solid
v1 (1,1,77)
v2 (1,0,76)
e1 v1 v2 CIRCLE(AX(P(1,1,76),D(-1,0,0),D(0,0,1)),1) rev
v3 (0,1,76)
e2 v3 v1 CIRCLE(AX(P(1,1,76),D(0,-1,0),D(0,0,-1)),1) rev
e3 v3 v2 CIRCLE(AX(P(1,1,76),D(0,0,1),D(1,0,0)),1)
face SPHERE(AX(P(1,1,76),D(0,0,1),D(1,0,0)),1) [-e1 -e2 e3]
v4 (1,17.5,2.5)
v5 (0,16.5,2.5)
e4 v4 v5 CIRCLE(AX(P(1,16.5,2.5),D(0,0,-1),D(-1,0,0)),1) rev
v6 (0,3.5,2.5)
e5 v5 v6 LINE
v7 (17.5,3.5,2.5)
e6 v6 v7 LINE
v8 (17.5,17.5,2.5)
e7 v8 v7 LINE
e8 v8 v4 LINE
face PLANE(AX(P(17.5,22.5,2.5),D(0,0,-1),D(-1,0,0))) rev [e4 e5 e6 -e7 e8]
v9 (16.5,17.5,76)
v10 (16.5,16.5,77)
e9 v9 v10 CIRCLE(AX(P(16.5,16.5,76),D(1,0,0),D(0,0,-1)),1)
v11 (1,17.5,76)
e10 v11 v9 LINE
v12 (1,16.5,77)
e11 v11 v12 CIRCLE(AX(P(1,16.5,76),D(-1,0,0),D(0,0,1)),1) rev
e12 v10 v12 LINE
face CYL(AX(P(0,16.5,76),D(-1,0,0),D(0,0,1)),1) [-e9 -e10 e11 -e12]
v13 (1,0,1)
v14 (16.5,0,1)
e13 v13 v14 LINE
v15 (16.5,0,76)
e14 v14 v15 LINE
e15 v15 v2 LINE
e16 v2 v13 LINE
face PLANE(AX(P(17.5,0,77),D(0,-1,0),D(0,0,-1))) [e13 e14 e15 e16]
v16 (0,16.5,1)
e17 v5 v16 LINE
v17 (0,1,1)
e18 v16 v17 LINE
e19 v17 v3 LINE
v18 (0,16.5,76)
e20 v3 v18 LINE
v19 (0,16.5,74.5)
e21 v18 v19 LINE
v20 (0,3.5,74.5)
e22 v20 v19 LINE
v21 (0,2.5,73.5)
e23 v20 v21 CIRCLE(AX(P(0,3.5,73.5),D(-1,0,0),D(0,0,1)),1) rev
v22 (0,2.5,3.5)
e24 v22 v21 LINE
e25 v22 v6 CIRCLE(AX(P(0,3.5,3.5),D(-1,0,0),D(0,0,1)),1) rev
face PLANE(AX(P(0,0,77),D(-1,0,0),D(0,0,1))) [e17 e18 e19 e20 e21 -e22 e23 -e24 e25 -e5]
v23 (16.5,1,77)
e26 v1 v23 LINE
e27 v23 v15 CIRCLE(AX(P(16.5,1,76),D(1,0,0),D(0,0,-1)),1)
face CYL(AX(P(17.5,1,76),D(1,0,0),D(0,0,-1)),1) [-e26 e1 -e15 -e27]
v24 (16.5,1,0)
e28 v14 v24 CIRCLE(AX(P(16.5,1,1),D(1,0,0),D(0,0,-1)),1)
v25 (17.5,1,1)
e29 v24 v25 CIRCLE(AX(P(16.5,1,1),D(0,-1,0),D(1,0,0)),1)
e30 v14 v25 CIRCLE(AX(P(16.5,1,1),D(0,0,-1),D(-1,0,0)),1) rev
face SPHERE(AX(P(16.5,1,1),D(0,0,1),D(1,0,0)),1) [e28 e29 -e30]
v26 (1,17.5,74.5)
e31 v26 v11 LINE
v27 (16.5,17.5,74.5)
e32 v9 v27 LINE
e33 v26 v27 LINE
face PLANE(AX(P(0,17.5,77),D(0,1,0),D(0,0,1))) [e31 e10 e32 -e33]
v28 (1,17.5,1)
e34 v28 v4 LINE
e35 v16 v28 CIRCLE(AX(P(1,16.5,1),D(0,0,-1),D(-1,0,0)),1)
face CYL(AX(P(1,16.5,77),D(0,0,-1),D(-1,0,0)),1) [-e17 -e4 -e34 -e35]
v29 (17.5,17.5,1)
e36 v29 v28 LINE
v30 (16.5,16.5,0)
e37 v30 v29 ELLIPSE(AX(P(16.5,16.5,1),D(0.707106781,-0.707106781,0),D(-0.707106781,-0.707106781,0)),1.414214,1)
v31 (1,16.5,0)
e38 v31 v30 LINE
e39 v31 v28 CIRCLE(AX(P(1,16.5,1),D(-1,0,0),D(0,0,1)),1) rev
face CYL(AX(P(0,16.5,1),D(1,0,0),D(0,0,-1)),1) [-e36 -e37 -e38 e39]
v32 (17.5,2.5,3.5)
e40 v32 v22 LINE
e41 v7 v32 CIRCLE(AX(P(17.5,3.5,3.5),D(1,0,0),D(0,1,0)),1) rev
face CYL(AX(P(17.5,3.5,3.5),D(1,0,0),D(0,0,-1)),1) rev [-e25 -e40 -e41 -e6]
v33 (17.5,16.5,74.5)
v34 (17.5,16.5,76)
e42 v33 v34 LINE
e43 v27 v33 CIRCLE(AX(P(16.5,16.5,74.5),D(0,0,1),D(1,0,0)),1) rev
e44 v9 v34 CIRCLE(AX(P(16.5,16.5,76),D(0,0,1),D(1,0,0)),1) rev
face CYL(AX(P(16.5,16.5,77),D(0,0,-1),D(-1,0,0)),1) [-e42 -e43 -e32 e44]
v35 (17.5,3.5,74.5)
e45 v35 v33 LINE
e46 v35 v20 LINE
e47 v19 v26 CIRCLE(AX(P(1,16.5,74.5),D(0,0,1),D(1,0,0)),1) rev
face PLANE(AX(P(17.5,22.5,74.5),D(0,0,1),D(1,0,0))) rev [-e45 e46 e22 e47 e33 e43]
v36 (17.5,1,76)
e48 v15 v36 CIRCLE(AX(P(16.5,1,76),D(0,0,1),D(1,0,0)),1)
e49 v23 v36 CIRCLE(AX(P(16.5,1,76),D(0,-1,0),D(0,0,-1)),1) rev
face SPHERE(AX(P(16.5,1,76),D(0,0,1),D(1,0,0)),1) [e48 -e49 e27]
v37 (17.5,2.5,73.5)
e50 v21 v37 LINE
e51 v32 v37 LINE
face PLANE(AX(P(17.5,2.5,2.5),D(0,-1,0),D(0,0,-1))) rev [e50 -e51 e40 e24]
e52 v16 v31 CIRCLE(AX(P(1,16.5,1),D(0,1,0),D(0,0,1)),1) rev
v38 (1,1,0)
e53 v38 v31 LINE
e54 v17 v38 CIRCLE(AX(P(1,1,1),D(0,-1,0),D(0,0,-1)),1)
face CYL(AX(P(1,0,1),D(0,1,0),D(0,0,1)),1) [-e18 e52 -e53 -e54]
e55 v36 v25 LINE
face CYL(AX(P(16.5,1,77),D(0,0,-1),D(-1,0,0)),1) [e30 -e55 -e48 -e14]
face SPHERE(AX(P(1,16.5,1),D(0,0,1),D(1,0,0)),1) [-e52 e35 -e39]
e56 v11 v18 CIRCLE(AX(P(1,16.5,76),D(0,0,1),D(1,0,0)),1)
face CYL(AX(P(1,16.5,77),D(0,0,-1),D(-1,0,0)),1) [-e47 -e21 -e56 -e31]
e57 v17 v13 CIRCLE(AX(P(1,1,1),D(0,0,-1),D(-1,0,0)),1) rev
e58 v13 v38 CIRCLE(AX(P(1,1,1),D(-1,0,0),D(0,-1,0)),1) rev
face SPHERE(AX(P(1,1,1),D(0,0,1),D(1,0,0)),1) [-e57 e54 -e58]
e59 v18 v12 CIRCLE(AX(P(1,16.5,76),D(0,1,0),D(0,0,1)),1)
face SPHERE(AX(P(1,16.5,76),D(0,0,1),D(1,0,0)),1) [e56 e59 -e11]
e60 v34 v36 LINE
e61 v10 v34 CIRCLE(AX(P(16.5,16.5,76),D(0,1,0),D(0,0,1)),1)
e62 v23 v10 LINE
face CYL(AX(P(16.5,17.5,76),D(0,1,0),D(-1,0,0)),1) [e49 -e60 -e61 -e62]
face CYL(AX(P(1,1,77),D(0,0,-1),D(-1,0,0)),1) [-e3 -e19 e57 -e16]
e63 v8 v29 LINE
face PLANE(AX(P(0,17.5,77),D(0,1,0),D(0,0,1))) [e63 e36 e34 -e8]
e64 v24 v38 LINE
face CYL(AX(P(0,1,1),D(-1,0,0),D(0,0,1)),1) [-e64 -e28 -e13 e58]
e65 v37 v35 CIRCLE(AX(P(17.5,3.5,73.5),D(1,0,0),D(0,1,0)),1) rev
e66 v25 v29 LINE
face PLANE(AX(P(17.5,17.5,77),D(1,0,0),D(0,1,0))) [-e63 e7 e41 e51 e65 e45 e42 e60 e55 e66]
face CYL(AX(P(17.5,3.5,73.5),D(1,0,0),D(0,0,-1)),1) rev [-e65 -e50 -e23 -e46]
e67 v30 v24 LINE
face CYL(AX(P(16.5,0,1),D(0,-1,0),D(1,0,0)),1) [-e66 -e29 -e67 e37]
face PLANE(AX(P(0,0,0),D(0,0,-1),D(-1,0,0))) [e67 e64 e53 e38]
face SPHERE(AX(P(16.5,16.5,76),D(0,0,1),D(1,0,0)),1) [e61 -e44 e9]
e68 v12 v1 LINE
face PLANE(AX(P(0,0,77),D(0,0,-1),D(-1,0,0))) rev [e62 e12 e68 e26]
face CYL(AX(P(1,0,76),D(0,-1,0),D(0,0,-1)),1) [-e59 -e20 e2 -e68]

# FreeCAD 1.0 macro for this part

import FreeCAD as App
import Part
import Sketcher

V = App.Vector
Q = App.Units.Quantity


def edges_at(feature, points):
    """Names of the edges that pass closest to the given points."""
    edges = feature.Shape.Edges
    near = lambda p: min(range(len(edges)), key=lambda i: edges[i].distToShape(Part.Vertex(*p))[0])
    return sorted({f"Edge{near(p) + 1}" for p in points})


def add_polygon(sketch, points):
    """Adds a closed chain of lines whose ends are joined by coincident constraints."""
    first, n = sketch.GeometryCount, len(points)
    for a, b in zip(points, points[1:] + points[:1]):
        sketch.addGeometry(Part.LineSegment(App.Vector(*a, 0), App.Vector(*b, 0)), False)
    for i in range(n):
        sketch.addConstraint(Sketcher.Constraint("Coincident", first + i, 2, first + (i + 1) % n, 1))

doc = App.newDocument("Part")
body = doc.addObject("PartDesign::Body", "Body")

sketch1 = doc.addObject("Sketcher::SketchObject", "Sketch")
body.addObject(sketch1)
sketch1.AttachmentSupport = (doc.XY_Plane, [""])
sketch1.MapMode = "FlatFace"
add_polygon(sketch1, [(0, 17.5), (0, 0), (17.5, 0), (17.5, 17.5)])
sketch1.addConstraint([
    Sketcher.Constraint("Vertical", 0),
    Sketcher.Constraint("Horizontal", 1),
    Sketcher.Constraint("Vertical", 2),
    Sketcher.Constraint("Horizontal", 3),
    Sketcher.Constraint("Coincident", 0, 2, -1, 1),
    Sketcher.Constraint("Equal", 3, 0),
    Sketcher.Constraint("DistanceX", 1, 1, 1, 2, Q("17.5 mm")),
])
pad1 = doc.addObject("PartDesign::Pad", "Pad")
body.addObject(pad1)
pad1.Profile = sketch1
pad1.Length = 77

sketch2 = doc.addObject("Sketcher::SketchObject", "Sketch001")
body.addObject(sketch2)
sketch2.AttachmentSupport = (doc.YZ_Plane, [""])
sketch2.MapMode = "FlatFace"
add_polygon(sketch2, [(22.5, 2.5), (2.5, 2.5), (2.5, 74.5), (22.5, 74.5)])
sketch2.addConstraint([
    Sketcher.Constraint("Horizontal", 0),
    Sketcher.Constraint("Vertical", 1),
    Sketcher.Constraint("Horizontal", 2),
    Sketcher.Constraint("Vertical", 3),
    Sketcher.Constraint("DistanceX", 0, 2, 0, 1, Q("20 mm")),
    Sketcher.Constraint("DistanceY", 1, 1, 1, 2, Q("72 mm")),
    Sketcher.Constraint("DistanceX", -1, 1, 0, 2, Q("2.5 mm")),
    Sketcher.Constraint("DistanceY", -1, 1, 0, 2, Q("2.5 mm")),
])
pocket1 = doc.addObject("PartDesign::Pocket", "Pocket")
body.addObject(pocket1)
pocket1.Profile = sketch2
pocket1.Type = "ThroughAll"
pocket1.Reversed = True
doc.recompute()

fillet = doc.addObject("PartDesign::Fillet", "Fillet")
body.addObject(fillet)
fillet.Base = (pocket1, edges_at(pocket1, [
    (8.75, 17.5, 77),
    (0, 17.5, 1.25),
    (17.5, 8.75, 77),
    (8.75, 2.5, 2.5),
    (8.75, 2.5, 74.5),
    (8.75, 0, 77),
    (17.5, 8.75, 0),
    (8.75, 17.5, 0),
    (0, 8.75, 0),
    (8.75, 0, 0),
    (17.5, 0, 38.5),
    (17.5, 17.5, 75.75),
    (0, 17.5, 75.75),
    (0, 0, 38.5),
    (0, 8.75, 77),
]))
fillet.Radius = 1

doc.recompute()
